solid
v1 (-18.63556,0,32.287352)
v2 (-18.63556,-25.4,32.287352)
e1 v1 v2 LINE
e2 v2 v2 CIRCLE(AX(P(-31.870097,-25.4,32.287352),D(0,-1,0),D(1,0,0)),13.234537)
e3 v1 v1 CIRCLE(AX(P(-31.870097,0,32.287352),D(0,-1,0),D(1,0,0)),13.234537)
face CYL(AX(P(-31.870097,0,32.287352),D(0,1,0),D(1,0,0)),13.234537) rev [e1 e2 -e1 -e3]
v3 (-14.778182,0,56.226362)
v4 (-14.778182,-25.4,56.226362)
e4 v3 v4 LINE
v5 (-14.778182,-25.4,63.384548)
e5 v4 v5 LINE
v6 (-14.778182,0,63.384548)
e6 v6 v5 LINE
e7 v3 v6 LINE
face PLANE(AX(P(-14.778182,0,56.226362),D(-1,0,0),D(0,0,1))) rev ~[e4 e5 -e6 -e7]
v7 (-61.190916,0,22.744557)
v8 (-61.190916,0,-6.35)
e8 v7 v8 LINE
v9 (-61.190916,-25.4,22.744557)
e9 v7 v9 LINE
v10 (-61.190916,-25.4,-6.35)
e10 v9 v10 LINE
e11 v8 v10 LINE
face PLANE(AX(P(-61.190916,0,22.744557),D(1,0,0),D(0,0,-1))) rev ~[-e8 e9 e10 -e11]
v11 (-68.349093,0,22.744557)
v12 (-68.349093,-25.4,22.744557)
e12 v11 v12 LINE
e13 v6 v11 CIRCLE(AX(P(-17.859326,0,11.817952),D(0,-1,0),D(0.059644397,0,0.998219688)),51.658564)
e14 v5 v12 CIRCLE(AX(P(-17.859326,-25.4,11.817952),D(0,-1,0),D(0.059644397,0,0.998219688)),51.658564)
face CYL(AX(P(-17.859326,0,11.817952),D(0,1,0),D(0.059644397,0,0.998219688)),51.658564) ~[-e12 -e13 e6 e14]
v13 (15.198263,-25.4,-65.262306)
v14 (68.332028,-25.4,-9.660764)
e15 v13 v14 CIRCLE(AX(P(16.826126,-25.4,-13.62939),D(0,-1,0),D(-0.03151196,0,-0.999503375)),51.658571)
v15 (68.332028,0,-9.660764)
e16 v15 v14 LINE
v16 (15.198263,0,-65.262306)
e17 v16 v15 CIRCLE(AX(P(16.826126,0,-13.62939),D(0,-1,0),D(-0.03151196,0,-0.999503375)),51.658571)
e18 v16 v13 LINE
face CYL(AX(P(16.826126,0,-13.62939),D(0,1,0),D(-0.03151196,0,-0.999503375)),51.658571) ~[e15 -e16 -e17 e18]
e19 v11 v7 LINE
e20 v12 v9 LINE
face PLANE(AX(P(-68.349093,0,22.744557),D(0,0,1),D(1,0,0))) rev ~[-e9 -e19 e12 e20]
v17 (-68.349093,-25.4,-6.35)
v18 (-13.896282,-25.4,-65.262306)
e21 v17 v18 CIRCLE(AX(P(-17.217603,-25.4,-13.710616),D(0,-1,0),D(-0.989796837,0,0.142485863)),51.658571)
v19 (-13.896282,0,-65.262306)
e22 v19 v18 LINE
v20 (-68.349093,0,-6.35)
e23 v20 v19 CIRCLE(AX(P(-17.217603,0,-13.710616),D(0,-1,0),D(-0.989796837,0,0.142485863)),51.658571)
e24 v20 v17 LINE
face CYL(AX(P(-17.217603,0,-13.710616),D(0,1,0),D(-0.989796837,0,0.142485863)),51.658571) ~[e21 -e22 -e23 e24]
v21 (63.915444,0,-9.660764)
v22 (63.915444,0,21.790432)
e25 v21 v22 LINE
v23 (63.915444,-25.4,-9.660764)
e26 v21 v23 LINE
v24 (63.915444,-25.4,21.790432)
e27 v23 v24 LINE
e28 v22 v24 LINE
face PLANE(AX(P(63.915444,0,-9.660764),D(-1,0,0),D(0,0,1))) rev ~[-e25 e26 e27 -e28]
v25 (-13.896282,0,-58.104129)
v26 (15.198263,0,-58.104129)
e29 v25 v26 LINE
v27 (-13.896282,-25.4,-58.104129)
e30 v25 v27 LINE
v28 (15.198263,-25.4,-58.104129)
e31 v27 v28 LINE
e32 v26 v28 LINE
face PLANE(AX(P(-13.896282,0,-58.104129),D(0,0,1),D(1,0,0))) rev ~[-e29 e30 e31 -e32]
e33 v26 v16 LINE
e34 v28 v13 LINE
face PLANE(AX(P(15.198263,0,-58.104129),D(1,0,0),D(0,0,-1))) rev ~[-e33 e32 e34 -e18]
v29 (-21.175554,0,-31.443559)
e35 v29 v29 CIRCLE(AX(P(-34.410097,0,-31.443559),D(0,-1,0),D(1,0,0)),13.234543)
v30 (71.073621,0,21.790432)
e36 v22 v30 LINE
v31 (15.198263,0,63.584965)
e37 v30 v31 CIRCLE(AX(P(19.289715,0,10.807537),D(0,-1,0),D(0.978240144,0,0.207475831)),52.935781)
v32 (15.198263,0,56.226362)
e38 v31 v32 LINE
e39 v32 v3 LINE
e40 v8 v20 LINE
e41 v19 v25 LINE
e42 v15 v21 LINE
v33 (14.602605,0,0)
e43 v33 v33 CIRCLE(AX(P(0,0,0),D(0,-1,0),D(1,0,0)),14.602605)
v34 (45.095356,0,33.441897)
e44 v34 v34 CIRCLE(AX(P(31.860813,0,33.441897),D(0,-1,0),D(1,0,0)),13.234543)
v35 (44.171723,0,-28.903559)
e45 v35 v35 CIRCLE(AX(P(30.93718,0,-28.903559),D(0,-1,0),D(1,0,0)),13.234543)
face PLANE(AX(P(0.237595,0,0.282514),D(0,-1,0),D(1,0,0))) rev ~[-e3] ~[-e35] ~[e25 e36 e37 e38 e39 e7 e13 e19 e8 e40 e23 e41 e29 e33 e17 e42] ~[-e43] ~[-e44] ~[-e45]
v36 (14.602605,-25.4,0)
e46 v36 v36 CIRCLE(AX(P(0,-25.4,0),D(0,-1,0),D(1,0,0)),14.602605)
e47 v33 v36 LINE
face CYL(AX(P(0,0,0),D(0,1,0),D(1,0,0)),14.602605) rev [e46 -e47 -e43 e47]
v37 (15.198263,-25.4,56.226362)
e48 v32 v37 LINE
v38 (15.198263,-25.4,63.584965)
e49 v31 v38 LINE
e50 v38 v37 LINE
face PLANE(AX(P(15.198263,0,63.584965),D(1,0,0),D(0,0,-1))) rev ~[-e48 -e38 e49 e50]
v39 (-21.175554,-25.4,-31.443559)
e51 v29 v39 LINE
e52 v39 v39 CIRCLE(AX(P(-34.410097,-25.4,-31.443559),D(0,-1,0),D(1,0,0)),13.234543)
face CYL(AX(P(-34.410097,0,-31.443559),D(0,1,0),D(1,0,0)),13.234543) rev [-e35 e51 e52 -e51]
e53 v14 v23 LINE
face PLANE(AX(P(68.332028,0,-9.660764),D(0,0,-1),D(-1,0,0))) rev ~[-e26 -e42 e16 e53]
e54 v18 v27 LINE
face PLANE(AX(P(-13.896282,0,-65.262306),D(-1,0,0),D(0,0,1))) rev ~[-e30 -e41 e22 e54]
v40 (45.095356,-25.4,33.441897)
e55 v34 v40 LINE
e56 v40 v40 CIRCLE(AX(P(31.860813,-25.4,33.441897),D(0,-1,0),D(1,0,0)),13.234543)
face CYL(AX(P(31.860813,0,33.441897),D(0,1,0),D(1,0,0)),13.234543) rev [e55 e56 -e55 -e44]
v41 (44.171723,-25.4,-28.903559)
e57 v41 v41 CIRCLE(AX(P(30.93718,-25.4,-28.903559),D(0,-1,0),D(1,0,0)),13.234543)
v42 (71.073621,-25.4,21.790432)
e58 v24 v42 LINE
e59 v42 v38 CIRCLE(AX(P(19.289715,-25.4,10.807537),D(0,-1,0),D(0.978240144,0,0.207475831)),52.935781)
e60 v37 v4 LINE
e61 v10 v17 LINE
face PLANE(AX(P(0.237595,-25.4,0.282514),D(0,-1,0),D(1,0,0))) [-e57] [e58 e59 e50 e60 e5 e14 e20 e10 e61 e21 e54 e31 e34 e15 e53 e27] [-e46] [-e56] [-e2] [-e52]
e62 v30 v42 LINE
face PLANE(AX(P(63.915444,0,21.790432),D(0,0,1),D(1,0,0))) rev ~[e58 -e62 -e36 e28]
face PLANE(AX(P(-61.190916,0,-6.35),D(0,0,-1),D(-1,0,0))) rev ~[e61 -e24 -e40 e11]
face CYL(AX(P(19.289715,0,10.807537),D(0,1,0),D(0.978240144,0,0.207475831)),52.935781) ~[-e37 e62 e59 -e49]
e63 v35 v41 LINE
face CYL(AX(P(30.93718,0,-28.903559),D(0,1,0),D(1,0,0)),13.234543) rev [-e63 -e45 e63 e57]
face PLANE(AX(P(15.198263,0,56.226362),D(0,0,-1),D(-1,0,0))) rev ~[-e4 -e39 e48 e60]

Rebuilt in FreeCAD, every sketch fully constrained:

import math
import FreeCAD as App
import Part
import Sketcher

V = App.Vector
Q = App.Units.Quantity

doc = App.newDocument("Part")
params = doc.addObject("Spreadsheet::Sheet", "Params")
for row, (alias, value) in enumerate([
    ("pad1_length", "1 in"),
], start=1):
    params.set(f"A{row}", alias)
    params.set(f"B{row}", "=" + value)
    params.setAlias(f"B{row}", alias)

body = doc.addObject("PartDesign::Body", "Body")

# Sketch on XZ plane
sketch1 = doc.addObject("Sketcher::SketchObject", "Sketch")
body.addObject(sketch1)
sketch1.AttachmentSupport = (doc.XZ_Plane, [""])
sketch1.MapMode = "FlatFace"
sketch1.addGeometry([
    Part.LineSegment(V(-68.349093, 22.744557, 0), V(-61.190916, 22.744557, 0)),  # 0
    Part.LineSegment(V(-61.190916, 22.744557, 0), V(-61.190916, -6.35, 0)),  # 1
    Part.LineSegment(V(-61.190916, -6.35, 0), V(-68.349093, -6.35, 0)),  # 2
    Part.ArcOfCircle(Part.Circle(V(-17.217603, -13.710616, 0), V(0, 0, 1), 51.658571), math.radians(171.808282), math.radians(273.686301)),  # 3
    Part.LineSegment(V(-13.896282, -65.262306, 0), V(-13.896282, -58.104129, 0)),  # 4
    Part.LineSegment(V(-13.896282, -58.104129, 0), V(15.198263, -58.104129, 0)),  # 5
    Part.LineSegment(V(15.198263, -58.104129, 0), V(15.198263, -65.262306, 0)),  # 6
    Part.ArcOfCircle(Part.Circle(V(16.826126, -13.62939, 0), V(0, 0, 1), 51.658571), math.radians(-91.805801), math.radians(4.406041)),  # 7
    Part.LineSegment(V(68.332028, -9.660764, 0), V(63.915444, -9.660764, 0)),  # 8
    Part.LineSegment(V(63.915444, -9.660764, 0), V(63.915444, 21.790432, 0)),  # 9
    Part.LineSegment(V(63.915444, 21.790432, 0), V(71.073621, 21.790432, 0)),  # 10
    Part.ArcOfCircle(Part.Circle(V(19.289715, 10.807537, 0), V(0, 0, 1), 52.935781), math.radians(11.97447), math.radians(94.432861)),  # 11
    Part.LineSegment(V(15.198263, 63.584965, 0), V(15.198263, 56.226362, 0)),  # 12
    Part.LineSegment(V(15.198263, 56.226362, 0), V(-14.778182, 56.226362, 0)),  # 13
    Part.LineSegment(V(-14.778182, 56.226362, 0), V(-14.778182, 63.384548, 0)),  # 14
    Part.ArcOfCircle(Part.Circle(V(-17.859326, 11.817952, 0), V(0, 0, 1), 51.658564), math.radians(86.580598), math.radians(167.7888)),  # 15
    Part.Circle(V(-34.410097, -31.443559, 0), V(0, 0, 1), 13.234543),  # 16
    Part.Circle(V(30.93718, -28.903559, 0), V(0, 0, 1), 13.234543),  # 17
    Part.Circle(V(0, 0, 0), V(0, 0, 1), 14.602605),  # 18
    Part.Circle(V(-31.870097, 32.287352, 0), V(0, 0, 1), 13.234537),  # 19
    Part.Circle(V(31.860813, 33.441897, 0), V(0, 0, 1), 13.234543),  # 20
], False)
sketch1.addConstraint([
    Sketcher.Constraint("Coincident", 0, 2, 1, 1),
    Sketcher.Constraint("Coincident", 1, 2, 2, 1),
    Sketcher.Constraint("Coincident", 2, 2, 3, 1),
    Sketcher.Constraint("Coincident", 3, 2, 4, 1),
    Sketcher.Constraint("Coincident", 4, 2, 5, 1),
    Sketcher.Constraint("Coincident", 5, 2, 6, 1),
    Sketcher.Constraint("Coincident", 6, 2, 7, 1),
    Sketcher.Constraint("Coincident", 7, 2, 8, 1),
    Sketcher.Constraint("Coincident", 8, 2, 9, 1),
    Sketcher.Constraint("Coincident", 9, 2, 10, 1),
    Sketcher.Constraint("Coincident", 10, 2, 11, 1),
    Sketcher.Constraint("Coincident", 11, 2, 12, 1),
    Sketcher.Constraint("Coincident", 12, 2, 13, 1),
    Sketcher.Constraint("Coincident", 13, 2, 14, 1),
    Sketcher.Constraint("Coincident", 14, 2, 15, 1),
    Sketcher.Constraint("Coincident", 15, 2, 0, 1),
    Sketcher.Constraint("Horizontal", 0),
    Sketcher.Constraint("Vertical", 1),
    Sketcher.Constraint("Horizontal", 2),
    Sketcher.Constraint("Vertical", 4),
    Sketcher.Constraint("Horizontal", 5),
    Sketcher.Constraint("Vertical", 6),
    Sketcher.Constraint("Horizontal", 8),
    Sketcher.Constraint("Vertical", 9),
    Sketcher.Constraint("Horizontal", 10),
    Sketcher.Constraint("Vertical", 12),
    Sketcher.Constraint("Horizontal", 13),
    Sketcher.Constraint("Vertical", 14),
    Sketcher.Constraint("Coincident", 18, 3, -1, 1),
    Sketcher.Constraint("Equal", 3, 7),
    Sketcher.Constraint("Equal", 16, 17),
    Sketcher.Constraint("Equal", 17, 20),
    Sketcher.Constraint("Horizontal", 3, 2, 6, 2),
    Sketcher.Constraint("Vertical", 6, 2, 11, 2),
    Sketcher.Constraint("Vertical", 2, 2, 15, 2),
    Sketcher.Constraint("Equal", 2, 10),
    Sketcher.Constraint("Equal", 10, 4),
    Sketcher.Constraint("DistanceY", 16, 3, 17, 3, Q("0.1 in")),
    Sketcher.Constraint("DistanceX", 16, 3, 19, 3, Q("0.1 in")),
    Sketcher.Constraint("DistanceY", 1, 2, -1, 1, Q("0.25 in")),
    Sketcher.Constraint("Diameter", 18, Q("29.20521 mm")),
    Sketcher.Constraint("Radius", 3, Q("51.658571 mm")),
    Sketcher.Constraint("Radius", 11, Q("52.935781 mm")),
    Sketcher.Constraint("Diameter", 16, Q("26.469086 mm")),
    Sketcher.Constraint("Diameter", 19, Q("26.469074 mm")),
    Sketcher.Constraint("Radius", 15, Q("51.658564 mm")),
    Sketcher.Constraint("DistanceY", 15, 3, 19, 3, Q("20.4694 mm")),
    Sketcher.Constraint("DistanceY", 7, 2, 11, 3, Q("20.468301 mm")),
    Sketcher.Constraint("DistanceX", 0, 1, 0, 2, Q("7.158177 mm")),
    Sketcher.Constraint("DistanceX", 5, 1, 5, 2, Q("29.094545 mm")),
    Sketcher.Constraint("DistanceX", 8, 2, 8, 1, Q("4.416584 mm")),
    Sketcher.Constraint("DistanceX", 13, 2, 13, 1, Q("29.976445 mm")),
    Sketcher.Constraint("DistanceY", 1, 2, 1, 1, Q("29.094557 mm")),
    Sketcher.Constraint("DistanceY", 9, 1, 9, 2, Q("31.451196 mm")),
    Sketcher.Constraint("DistanceY", 12, 2, 12, 1, Q("7.358603 mm")),
    Sketcher.Constraint("DistanceY", 14, 1, 14, 2, Q("7.158186 mm")),
    Sketcher.Constraint("DistanceY", 7, 3, -1, 1, Q("13.62939 mm")),
    Sketcher.Constraint("DistanceY", -1, 1, 15, 3, Q("11.817952 mm")),
    Sketcher.Constraint("DistanceY", 16, 3, -1, 1, Q("31.443559 mm")),
    Sketcher.Constraint("DistanceX", -1, 1, 17, 3, Q("30.93718 mm")),
    Sketcher.Constraint("DistanceX", 3, 2, -1, 1, Q("13.896282 mm")),
    Sketcher.Constraint("DistanceY", 4, 2, -1, 1, Q("58.104129 mm")),
    Sketcher.Constraint("DistanceY", -1, 1, 9, 2, Q("21.790432 mm")),
    Sketcher.Constraint("DistanceX", 16, 3, 15, 3, Q("16.550771 mm")),
    Sketcher.Constraint("DistanceY", 11, 3, 20, 3, Q("22.63436 mm")),
    Sketcher.Constraint("DistanceX", 15, 3, 20, 3, Q("49.720139 mm")),
])
pad1 = doc.addObject("PartDesign::Pad", "Pad")
body.addObject(pad1)
pad1.Profile = sketch1
pad1.setExpression("Length", "Params.pad1_length")

doc.recompute()
